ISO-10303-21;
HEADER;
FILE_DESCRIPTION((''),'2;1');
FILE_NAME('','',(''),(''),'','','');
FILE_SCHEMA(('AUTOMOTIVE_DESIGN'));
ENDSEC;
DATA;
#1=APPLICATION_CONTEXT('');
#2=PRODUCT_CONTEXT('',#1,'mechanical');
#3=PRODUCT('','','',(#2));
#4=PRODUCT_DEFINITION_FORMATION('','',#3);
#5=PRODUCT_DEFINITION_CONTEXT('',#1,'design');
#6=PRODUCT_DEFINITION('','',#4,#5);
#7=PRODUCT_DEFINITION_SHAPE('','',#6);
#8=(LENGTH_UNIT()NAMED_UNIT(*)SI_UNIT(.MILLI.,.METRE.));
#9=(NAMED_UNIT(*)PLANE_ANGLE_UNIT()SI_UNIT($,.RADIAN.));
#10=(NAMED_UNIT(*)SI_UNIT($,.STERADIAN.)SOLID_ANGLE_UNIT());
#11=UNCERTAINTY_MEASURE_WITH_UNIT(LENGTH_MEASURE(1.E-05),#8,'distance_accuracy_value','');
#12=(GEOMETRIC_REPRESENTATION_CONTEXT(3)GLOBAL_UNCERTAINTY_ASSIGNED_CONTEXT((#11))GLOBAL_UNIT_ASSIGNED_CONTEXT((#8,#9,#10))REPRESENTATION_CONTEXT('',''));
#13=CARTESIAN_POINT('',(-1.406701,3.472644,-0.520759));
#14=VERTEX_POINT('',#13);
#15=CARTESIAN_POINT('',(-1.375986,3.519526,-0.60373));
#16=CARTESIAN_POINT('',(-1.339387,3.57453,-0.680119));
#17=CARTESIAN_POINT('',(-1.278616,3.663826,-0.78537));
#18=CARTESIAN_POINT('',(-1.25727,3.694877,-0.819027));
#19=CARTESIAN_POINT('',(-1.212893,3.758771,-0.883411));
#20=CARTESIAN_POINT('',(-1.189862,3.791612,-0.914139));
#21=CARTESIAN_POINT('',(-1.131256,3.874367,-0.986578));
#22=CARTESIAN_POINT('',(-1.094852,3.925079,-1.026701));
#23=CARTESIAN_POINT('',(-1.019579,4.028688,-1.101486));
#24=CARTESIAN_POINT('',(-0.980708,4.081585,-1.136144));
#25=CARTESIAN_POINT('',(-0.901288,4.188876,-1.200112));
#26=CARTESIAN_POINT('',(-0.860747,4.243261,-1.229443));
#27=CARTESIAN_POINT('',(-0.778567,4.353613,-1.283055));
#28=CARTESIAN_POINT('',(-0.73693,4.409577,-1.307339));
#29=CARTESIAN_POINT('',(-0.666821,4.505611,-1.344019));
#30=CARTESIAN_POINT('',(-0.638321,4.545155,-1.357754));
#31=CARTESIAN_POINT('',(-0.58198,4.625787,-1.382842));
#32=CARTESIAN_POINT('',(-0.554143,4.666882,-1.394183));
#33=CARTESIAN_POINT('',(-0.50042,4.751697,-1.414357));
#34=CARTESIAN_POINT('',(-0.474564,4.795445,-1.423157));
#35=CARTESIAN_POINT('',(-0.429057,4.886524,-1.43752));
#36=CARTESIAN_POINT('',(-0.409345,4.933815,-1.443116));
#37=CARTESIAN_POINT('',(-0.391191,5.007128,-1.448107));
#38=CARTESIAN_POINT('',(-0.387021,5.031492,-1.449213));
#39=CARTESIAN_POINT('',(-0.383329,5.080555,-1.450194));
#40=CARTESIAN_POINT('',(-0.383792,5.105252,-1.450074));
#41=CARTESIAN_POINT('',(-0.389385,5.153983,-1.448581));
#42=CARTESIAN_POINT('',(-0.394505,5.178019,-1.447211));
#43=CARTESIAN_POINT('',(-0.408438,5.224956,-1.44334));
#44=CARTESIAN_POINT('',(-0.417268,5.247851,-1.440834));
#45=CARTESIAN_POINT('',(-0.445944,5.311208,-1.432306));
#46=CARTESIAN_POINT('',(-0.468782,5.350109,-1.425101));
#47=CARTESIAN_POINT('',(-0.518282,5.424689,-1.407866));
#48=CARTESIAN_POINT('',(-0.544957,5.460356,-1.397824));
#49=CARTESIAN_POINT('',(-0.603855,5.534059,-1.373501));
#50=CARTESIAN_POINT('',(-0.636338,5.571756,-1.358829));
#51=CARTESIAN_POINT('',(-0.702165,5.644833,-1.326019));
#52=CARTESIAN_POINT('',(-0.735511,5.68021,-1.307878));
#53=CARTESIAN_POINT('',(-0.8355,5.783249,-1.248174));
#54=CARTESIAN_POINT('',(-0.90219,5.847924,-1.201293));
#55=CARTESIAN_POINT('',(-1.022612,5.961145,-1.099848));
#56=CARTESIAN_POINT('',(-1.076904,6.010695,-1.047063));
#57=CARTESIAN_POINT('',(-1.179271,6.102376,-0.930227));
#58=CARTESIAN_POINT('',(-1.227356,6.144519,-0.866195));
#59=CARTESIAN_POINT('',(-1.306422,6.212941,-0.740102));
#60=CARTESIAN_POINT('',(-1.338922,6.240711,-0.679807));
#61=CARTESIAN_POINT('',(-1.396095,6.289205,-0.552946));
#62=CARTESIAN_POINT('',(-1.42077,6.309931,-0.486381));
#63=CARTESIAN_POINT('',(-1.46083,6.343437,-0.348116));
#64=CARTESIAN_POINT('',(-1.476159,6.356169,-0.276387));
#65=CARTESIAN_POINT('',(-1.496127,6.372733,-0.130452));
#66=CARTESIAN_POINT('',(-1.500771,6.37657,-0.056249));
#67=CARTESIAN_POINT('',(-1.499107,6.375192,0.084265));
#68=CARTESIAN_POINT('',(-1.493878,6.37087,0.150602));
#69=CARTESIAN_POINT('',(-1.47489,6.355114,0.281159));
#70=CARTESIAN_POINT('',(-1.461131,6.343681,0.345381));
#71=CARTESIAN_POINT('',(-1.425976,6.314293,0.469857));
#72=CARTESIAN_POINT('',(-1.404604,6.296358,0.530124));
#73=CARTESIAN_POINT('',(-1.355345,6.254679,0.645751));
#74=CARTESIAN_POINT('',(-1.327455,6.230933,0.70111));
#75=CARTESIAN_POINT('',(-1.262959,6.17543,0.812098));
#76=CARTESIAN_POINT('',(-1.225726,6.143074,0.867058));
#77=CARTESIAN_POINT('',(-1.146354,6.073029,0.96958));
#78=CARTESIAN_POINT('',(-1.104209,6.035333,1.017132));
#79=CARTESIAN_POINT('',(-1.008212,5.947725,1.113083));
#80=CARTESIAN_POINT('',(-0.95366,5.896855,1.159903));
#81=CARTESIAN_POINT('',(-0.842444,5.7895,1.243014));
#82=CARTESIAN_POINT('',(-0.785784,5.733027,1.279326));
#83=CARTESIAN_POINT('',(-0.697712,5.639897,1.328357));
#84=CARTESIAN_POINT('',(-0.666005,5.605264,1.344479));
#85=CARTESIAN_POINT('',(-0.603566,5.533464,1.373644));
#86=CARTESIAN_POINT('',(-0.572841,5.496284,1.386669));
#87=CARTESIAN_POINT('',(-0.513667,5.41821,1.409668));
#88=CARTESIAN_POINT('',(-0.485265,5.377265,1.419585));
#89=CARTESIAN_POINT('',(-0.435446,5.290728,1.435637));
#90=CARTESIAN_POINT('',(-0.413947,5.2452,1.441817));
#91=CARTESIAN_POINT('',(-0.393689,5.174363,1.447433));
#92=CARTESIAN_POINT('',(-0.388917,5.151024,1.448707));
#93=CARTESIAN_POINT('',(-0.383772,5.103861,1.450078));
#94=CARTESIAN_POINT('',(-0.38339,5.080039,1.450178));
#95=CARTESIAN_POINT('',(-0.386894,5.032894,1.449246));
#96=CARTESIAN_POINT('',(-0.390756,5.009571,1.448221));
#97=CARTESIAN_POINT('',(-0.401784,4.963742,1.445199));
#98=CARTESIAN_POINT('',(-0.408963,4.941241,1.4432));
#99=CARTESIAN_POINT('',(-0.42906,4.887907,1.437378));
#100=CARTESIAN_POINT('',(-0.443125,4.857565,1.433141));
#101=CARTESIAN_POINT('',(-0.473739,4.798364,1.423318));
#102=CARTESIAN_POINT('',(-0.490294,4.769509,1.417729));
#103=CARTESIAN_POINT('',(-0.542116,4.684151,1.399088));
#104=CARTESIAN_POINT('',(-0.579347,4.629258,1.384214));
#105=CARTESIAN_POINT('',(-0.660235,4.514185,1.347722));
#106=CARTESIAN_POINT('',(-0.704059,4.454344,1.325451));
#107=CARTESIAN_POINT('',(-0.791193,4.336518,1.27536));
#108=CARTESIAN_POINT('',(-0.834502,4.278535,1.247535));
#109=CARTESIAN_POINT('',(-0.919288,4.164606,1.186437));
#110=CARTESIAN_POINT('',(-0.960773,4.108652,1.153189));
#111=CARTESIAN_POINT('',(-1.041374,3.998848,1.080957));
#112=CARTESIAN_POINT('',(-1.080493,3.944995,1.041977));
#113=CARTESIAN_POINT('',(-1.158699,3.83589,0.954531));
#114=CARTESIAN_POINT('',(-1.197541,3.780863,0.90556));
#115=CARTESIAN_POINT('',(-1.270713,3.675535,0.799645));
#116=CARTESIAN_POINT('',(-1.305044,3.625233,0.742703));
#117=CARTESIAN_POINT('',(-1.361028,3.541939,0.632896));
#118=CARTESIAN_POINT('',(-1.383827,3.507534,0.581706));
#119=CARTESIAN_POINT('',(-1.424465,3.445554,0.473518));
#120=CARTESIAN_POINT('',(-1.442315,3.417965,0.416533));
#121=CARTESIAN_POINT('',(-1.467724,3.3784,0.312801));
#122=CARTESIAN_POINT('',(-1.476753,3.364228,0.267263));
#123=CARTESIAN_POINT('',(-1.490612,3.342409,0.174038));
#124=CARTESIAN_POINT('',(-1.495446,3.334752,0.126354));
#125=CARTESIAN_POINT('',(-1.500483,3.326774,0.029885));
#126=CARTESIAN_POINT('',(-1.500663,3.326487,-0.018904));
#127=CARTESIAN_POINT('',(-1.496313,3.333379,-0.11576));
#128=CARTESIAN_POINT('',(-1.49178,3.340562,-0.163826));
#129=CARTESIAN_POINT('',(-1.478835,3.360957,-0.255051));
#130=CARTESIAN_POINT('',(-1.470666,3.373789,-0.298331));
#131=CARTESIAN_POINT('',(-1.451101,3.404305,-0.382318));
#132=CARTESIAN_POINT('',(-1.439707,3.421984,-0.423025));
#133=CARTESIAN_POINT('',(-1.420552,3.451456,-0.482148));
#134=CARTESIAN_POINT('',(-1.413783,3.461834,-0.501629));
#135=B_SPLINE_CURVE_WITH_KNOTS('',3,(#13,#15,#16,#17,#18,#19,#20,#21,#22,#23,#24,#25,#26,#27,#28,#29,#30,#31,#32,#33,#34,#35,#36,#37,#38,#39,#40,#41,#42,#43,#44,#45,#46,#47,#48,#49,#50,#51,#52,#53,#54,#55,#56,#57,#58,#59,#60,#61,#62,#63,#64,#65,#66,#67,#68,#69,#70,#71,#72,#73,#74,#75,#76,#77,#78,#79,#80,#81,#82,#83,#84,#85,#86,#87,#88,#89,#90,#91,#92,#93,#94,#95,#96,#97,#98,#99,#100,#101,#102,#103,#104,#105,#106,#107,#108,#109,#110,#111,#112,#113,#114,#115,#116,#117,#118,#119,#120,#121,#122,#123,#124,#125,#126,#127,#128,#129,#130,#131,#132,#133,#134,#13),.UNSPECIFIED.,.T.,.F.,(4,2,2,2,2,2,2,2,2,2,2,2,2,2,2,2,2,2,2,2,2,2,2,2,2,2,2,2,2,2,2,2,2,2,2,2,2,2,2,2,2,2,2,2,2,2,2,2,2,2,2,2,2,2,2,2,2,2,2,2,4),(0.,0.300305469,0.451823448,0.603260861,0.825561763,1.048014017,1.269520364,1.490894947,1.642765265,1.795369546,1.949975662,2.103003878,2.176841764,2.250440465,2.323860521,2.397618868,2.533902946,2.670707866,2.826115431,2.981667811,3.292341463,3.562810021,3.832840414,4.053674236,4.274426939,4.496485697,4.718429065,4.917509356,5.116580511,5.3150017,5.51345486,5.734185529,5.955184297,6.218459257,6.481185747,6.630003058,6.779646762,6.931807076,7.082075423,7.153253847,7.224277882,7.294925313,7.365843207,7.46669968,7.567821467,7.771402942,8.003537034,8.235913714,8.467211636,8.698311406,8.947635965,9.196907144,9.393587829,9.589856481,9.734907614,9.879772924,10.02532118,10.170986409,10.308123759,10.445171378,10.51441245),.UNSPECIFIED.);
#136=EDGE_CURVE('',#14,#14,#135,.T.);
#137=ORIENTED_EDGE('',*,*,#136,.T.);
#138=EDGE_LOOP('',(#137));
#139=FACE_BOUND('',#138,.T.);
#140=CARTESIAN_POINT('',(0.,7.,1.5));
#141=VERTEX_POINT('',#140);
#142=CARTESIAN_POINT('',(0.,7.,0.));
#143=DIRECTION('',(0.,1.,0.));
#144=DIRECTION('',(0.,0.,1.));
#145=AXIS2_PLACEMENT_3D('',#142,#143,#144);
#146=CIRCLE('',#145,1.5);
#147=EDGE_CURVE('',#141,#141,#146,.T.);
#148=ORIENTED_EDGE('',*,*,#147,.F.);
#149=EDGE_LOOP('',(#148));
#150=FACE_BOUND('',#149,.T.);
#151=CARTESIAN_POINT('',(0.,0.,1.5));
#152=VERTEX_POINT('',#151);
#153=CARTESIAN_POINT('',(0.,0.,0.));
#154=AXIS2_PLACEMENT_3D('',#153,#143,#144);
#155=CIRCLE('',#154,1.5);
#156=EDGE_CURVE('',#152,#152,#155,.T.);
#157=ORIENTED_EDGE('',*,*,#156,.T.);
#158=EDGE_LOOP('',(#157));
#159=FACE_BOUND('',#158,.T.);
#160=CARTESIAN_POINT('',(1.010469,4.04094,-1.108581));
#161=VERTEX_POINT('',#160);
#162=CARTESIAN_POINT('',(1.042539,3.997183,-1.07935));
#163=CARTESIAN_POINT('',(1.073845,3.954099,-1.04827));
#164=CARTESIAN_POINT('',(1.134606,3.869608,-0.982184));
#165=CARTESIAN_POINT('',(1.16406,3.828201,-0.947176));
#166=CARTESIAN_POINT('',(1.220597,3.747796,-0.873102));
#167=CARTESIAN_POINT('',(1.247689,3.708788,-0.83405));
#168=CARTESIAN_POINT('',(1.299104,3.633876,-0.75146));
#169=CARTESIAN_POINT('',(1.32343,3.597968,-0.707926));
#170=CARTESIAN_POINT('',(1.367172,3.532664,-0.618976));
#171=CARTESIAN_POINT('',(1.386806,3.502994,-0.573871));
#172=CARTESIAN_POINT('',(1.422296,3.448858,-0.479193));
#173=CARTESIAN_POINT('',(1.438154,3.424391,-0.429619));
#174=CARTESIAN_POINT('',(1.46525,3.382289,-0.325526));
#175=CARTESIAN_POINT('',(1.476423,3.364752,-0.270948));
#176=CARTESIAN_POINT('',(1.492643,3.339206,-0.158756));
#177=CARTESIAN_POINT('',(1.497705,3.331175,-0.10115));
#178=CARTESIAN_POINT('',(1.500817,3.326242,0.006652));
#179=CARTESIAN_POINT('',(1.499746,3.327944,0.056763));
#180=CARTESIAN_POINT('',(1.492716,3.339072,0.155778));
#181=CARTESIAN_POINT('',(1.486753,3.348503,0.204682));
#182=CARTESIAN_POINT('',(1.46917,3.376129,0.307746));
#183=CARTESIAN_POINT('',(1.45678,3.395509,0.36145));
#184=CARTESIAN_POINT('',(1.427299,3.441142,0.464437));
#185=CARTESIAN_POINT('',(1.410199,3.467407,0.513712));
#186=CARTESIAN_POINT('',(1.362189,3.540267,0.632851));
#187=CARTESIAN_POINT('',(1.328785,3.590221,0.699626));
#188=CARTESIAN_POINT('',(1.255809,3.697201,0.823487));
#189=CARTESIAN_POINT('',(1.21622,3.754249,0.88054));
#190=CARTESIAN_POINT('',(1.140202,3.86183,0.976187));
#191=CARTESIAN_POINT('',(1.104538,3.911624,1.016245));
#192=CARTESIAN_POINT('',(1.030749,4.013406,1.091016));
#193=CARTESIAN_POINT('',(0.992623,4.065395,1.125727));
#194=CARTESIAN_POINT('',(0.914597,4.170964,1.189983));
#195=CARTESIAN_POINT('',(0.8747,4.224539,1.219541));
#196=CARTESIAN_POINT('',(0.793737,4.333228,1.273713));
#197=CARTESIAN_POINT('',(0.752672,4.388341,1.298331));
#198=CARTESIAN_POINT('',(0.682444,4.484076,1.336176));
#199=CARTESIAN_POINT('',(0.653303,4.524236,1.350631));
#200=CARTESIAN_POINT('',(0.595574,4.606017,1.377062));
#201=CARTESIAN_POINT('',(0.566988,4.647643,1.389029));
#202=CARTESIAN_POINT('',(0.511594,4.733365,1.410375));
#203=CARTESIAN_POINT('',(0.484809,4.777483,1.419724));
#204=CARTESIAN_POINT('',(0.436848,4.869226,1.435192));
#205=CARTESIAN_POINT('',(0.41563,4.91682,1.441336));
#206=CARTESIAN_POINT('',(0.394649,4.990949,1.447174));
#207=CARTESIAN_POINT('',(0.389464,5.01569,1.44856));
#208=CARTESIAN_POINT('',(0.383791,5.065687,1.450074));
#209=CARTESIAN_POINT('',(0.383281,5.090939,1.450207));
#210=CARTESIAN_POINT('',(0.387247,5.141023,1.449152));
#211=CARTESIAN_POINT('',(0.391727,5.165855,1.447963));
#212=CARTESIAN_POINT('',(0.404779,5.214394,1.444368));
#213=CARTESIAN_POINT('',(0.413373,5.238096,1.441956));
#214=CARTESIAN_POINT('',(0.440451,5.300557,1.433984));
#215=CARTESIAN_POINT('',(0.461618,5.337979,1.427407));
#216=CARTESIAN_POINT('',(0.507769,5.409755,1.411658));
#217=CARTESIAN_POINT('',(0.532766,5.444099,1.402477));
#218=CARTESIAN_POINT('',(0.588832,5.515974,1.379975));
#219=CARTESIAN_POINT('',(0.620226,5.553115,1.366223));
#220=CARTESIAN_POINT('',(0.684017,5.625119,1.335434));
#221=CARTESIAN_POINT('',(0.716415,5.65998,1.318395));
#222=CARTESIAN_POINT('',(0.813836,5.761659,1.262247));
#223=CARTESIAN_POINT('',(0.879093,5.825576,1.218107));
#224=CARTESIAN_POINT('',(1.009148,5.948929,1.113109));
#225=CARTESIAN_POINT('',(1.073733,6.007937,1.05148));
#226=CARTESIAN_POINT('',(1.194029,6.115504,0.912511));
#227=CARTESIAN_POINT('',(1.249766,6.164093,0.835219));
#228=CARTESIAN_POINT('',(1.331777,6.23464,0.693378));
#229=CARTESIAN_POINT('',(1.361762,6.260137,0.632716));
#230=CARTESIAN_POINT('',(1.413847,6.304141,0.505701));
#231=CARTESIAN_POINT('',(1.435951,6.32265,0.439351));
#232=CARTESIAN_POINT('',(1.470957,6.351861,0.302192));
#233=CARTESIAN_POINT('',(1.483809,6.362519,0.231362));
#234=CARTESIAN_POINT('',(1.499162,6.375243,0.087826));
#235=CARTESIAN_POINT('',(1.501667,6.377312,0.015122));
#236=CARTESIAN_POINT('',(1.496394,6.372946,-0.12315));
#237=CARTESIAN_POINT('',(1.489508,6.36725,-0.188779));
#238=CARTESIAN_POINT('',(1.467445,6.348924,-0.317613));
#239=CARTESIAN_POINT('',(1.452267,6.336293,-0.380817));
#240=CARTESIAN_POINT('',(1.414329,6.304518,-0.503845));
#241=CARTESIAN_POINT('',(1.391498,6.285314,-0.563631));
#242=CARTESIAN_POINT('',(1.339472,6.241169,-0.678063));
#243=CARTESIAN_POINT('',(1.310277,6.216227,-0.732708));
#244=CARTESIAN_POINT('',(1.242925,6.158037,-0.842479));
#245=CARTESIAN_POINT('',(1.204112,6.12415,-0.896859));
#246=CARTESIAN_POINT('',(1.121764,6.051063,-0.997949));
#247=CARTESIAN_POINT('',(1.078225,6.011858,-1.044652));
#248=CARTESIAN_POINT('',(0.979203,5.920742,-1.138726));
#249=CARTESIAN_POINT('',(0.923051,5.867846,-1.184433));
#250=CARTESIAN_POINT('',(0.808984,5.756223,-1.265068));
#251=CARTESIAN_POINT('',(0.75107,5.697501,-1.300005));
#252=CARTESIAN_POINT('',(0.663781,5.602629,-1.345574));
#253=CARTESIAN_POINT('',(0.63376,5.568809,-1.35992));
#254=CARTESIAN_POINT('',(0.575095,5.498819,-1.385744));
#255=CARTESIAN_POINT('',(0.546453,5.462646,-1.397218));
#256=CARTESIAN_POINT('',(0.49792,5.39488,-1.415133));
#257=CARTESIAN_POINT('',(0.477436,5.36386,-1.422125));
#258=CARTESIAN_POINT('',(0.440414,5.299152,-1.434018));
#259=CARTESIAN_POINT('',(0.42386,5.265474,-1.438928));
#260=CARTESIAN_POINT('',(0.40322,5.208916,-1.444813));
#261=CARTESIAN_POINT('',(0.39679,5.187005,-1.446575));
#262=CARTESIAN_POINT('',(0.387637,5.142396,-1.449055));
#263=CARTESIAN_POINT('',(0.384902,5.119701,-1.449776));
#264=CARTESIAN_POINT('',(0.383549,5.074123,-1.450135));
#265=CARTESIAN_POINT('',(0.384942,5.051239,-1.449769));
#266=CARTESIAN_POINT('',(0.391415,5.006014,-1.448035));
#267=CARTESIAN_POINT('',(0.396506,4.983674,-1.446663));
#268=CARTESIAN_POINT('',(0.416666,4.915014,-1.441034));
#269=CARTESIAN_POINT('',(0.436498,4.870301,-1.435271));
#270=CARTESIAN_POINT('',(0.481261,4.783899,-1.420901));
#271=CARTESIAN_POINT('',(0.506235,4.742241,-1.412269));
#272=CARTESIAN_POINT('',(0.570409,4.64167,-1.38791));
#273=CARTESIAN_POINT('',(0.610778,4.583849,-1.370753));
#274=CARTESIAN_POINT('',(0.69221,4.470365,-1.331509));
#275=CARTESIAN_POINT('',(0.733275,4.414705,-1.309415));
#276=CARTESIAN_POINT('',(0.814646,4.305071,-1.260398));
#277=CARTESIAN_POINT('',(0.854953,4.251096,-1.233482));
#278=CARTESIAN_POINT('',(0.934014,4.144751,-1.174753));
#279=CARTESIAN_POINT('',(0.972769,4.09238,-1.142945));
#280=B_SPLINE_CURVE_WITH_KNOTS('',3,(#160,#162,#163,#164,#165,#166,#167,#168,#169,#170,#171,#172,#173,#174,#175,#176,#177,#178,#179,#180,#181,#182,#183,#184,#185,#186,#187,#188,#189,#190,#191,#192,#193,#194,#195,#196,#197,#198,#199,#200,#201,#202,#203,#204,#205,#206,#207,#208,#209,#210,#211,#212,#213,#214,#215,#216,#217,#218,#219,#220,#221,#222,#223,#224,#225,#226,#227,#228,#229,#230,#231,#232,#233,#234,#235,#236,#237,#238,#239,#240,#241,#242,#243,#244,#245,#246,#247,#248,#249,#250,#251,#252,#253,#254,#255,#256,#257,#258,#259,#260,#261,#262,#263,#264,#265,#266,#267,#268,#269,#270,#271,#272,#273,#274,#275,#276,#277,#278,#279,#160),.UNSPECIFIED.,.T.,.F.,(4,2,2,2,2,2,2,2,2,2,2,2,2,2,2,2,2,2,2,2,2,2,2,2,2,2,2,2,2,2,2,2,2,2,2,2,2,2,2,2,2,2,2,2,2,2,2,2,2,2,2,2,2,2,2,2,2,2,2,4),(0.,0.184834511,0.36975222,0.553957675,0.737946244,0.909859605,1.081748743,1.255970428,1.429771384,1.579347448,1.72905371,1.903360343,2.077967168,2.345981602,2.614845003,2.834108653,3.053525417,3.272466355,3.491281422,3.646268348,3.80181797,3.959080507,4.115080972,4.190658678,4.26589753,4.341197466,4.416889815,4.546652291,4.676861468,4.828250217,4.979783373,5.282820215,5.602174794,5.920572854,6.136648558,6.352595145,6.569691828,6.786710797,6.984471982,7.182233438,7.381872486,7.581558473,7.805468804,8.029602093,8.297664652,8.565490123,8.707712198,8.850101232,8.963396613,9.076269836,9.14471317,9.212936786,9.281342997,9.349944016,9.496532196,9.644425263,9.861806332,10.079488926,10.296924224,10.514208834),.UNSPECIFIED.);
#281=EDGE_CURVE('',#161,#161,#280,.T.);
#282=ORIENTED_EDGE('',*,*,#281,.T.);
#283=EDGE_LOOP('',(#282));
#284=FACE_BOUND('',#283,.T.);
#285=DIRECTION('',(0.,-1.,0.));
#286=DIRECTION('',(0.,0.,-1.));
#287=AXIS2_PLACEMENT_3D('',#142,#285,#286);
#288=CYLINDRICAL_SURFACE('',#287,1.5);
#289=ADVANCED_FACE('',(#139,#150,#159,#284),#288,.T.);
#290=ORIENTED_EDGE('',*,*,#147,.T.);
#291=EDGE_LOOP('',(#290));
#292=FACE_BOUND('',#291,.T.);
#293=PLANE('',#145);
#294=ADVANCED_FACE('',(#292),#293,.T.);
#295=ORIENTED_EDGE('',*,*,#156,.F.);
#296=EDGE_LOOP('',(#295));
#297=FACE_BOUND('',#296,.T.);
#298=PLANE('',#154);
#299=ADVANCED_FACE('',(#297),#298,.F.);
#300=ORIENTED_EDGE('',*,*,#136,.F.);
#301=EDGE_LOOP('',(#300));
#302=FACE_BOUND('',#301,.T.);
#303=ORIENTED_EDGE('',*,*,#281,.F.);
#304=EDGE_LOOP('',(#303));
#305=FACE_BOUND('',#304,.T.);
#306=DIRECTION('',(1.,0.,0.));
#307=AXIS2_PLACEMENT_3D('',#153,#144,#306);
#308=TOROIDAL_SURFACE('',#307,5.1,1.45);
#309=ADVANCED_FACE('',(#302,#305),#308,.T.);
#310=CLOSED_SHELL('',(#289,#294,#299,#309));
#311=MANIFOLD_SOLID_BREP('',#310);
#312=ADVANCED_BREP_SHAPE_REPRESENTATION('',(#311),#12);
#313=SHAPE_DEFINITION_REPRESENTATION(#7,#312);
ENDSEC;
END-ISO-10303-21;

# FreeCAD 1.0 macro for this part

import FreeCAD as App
import Part
import Sketcher
from FreeCAD import Vector

doc = App.newDocument("Part")
body = doc.addObject("PartDesign::Body", "Body")

sketch1 = doc.addObject("Sketcher::SketchObject", "Sketch")
body.addObject(sketch1)
sketch1.AttachmentSupport = (doc.YZ_Plane, [""])
sketch1.MapMode = "FlatFace"
sketch1.addGeometry(Part.Circle(Vector(5.1, 0, 0), Vector(0, 0, 1), 1.4), False)
sketch1.addConstraint([
    Sketcher.Constraint("PointOnObject", 0, 3, -1),
    Sketcher.Constraint("Diameter", 0, 2.9),
    Sketcher.Constraint("DistanceX", -1, 1, 0, 3, 5.1),
])

sketch2 = doc.addObject("Sketcher::SketchObject", "Sketch001")
body.addObject(sketch2)
sketch2.AttachmentSupport = (doc.XY_Plane, [""])
sketch2.MapMode = "FlatFace"
sketch2.addGeometry(Part.Circle(Vector(0, 0, 0), Vector(0, 0, 1), 5), False)
sketch2.addConstraint([
    Sketcher.Constraint("Coincident", 0, 3, -1, 1),
    Sketcher.Constraint("Diameter", 0, 10.0),
])
doc.recompute()

additivepipe = doc.addObject("PartDesign::AdditivePipe", "AdditivePipe")
body.addObject(additivepipe)
additivepipe.Profile = sketch1
additivepipe.Spine = (sketch2, ["Edge1"])

sketch3 = doc.addObject("Sketcher::SketchObject", "Sketch002")
body.addObject(sketch3)
sketch3.AttachmentSupport = (doc.XZ_Plane, [""])
sketch3.MapMode = "FlatFace"
sketch3.addGeometry(Part.Circle(Vector(0, 0, 0), Vector(0, 0, 1), 1.5), False)
sketch3.addConstraint([
    Sketcher.Constraint("Coincident", 0, 3, -1, 1),
    Sketcher.Constraint("Diameter", 0, 3.0),
])
pad1 = doc.addObject("PartDesign::Pad", "Pad")
body.addObject(pad1)
pad1.Profile = sketch3
pad1.Length = 7
pad1.Reversed = True

doc.recompute()
